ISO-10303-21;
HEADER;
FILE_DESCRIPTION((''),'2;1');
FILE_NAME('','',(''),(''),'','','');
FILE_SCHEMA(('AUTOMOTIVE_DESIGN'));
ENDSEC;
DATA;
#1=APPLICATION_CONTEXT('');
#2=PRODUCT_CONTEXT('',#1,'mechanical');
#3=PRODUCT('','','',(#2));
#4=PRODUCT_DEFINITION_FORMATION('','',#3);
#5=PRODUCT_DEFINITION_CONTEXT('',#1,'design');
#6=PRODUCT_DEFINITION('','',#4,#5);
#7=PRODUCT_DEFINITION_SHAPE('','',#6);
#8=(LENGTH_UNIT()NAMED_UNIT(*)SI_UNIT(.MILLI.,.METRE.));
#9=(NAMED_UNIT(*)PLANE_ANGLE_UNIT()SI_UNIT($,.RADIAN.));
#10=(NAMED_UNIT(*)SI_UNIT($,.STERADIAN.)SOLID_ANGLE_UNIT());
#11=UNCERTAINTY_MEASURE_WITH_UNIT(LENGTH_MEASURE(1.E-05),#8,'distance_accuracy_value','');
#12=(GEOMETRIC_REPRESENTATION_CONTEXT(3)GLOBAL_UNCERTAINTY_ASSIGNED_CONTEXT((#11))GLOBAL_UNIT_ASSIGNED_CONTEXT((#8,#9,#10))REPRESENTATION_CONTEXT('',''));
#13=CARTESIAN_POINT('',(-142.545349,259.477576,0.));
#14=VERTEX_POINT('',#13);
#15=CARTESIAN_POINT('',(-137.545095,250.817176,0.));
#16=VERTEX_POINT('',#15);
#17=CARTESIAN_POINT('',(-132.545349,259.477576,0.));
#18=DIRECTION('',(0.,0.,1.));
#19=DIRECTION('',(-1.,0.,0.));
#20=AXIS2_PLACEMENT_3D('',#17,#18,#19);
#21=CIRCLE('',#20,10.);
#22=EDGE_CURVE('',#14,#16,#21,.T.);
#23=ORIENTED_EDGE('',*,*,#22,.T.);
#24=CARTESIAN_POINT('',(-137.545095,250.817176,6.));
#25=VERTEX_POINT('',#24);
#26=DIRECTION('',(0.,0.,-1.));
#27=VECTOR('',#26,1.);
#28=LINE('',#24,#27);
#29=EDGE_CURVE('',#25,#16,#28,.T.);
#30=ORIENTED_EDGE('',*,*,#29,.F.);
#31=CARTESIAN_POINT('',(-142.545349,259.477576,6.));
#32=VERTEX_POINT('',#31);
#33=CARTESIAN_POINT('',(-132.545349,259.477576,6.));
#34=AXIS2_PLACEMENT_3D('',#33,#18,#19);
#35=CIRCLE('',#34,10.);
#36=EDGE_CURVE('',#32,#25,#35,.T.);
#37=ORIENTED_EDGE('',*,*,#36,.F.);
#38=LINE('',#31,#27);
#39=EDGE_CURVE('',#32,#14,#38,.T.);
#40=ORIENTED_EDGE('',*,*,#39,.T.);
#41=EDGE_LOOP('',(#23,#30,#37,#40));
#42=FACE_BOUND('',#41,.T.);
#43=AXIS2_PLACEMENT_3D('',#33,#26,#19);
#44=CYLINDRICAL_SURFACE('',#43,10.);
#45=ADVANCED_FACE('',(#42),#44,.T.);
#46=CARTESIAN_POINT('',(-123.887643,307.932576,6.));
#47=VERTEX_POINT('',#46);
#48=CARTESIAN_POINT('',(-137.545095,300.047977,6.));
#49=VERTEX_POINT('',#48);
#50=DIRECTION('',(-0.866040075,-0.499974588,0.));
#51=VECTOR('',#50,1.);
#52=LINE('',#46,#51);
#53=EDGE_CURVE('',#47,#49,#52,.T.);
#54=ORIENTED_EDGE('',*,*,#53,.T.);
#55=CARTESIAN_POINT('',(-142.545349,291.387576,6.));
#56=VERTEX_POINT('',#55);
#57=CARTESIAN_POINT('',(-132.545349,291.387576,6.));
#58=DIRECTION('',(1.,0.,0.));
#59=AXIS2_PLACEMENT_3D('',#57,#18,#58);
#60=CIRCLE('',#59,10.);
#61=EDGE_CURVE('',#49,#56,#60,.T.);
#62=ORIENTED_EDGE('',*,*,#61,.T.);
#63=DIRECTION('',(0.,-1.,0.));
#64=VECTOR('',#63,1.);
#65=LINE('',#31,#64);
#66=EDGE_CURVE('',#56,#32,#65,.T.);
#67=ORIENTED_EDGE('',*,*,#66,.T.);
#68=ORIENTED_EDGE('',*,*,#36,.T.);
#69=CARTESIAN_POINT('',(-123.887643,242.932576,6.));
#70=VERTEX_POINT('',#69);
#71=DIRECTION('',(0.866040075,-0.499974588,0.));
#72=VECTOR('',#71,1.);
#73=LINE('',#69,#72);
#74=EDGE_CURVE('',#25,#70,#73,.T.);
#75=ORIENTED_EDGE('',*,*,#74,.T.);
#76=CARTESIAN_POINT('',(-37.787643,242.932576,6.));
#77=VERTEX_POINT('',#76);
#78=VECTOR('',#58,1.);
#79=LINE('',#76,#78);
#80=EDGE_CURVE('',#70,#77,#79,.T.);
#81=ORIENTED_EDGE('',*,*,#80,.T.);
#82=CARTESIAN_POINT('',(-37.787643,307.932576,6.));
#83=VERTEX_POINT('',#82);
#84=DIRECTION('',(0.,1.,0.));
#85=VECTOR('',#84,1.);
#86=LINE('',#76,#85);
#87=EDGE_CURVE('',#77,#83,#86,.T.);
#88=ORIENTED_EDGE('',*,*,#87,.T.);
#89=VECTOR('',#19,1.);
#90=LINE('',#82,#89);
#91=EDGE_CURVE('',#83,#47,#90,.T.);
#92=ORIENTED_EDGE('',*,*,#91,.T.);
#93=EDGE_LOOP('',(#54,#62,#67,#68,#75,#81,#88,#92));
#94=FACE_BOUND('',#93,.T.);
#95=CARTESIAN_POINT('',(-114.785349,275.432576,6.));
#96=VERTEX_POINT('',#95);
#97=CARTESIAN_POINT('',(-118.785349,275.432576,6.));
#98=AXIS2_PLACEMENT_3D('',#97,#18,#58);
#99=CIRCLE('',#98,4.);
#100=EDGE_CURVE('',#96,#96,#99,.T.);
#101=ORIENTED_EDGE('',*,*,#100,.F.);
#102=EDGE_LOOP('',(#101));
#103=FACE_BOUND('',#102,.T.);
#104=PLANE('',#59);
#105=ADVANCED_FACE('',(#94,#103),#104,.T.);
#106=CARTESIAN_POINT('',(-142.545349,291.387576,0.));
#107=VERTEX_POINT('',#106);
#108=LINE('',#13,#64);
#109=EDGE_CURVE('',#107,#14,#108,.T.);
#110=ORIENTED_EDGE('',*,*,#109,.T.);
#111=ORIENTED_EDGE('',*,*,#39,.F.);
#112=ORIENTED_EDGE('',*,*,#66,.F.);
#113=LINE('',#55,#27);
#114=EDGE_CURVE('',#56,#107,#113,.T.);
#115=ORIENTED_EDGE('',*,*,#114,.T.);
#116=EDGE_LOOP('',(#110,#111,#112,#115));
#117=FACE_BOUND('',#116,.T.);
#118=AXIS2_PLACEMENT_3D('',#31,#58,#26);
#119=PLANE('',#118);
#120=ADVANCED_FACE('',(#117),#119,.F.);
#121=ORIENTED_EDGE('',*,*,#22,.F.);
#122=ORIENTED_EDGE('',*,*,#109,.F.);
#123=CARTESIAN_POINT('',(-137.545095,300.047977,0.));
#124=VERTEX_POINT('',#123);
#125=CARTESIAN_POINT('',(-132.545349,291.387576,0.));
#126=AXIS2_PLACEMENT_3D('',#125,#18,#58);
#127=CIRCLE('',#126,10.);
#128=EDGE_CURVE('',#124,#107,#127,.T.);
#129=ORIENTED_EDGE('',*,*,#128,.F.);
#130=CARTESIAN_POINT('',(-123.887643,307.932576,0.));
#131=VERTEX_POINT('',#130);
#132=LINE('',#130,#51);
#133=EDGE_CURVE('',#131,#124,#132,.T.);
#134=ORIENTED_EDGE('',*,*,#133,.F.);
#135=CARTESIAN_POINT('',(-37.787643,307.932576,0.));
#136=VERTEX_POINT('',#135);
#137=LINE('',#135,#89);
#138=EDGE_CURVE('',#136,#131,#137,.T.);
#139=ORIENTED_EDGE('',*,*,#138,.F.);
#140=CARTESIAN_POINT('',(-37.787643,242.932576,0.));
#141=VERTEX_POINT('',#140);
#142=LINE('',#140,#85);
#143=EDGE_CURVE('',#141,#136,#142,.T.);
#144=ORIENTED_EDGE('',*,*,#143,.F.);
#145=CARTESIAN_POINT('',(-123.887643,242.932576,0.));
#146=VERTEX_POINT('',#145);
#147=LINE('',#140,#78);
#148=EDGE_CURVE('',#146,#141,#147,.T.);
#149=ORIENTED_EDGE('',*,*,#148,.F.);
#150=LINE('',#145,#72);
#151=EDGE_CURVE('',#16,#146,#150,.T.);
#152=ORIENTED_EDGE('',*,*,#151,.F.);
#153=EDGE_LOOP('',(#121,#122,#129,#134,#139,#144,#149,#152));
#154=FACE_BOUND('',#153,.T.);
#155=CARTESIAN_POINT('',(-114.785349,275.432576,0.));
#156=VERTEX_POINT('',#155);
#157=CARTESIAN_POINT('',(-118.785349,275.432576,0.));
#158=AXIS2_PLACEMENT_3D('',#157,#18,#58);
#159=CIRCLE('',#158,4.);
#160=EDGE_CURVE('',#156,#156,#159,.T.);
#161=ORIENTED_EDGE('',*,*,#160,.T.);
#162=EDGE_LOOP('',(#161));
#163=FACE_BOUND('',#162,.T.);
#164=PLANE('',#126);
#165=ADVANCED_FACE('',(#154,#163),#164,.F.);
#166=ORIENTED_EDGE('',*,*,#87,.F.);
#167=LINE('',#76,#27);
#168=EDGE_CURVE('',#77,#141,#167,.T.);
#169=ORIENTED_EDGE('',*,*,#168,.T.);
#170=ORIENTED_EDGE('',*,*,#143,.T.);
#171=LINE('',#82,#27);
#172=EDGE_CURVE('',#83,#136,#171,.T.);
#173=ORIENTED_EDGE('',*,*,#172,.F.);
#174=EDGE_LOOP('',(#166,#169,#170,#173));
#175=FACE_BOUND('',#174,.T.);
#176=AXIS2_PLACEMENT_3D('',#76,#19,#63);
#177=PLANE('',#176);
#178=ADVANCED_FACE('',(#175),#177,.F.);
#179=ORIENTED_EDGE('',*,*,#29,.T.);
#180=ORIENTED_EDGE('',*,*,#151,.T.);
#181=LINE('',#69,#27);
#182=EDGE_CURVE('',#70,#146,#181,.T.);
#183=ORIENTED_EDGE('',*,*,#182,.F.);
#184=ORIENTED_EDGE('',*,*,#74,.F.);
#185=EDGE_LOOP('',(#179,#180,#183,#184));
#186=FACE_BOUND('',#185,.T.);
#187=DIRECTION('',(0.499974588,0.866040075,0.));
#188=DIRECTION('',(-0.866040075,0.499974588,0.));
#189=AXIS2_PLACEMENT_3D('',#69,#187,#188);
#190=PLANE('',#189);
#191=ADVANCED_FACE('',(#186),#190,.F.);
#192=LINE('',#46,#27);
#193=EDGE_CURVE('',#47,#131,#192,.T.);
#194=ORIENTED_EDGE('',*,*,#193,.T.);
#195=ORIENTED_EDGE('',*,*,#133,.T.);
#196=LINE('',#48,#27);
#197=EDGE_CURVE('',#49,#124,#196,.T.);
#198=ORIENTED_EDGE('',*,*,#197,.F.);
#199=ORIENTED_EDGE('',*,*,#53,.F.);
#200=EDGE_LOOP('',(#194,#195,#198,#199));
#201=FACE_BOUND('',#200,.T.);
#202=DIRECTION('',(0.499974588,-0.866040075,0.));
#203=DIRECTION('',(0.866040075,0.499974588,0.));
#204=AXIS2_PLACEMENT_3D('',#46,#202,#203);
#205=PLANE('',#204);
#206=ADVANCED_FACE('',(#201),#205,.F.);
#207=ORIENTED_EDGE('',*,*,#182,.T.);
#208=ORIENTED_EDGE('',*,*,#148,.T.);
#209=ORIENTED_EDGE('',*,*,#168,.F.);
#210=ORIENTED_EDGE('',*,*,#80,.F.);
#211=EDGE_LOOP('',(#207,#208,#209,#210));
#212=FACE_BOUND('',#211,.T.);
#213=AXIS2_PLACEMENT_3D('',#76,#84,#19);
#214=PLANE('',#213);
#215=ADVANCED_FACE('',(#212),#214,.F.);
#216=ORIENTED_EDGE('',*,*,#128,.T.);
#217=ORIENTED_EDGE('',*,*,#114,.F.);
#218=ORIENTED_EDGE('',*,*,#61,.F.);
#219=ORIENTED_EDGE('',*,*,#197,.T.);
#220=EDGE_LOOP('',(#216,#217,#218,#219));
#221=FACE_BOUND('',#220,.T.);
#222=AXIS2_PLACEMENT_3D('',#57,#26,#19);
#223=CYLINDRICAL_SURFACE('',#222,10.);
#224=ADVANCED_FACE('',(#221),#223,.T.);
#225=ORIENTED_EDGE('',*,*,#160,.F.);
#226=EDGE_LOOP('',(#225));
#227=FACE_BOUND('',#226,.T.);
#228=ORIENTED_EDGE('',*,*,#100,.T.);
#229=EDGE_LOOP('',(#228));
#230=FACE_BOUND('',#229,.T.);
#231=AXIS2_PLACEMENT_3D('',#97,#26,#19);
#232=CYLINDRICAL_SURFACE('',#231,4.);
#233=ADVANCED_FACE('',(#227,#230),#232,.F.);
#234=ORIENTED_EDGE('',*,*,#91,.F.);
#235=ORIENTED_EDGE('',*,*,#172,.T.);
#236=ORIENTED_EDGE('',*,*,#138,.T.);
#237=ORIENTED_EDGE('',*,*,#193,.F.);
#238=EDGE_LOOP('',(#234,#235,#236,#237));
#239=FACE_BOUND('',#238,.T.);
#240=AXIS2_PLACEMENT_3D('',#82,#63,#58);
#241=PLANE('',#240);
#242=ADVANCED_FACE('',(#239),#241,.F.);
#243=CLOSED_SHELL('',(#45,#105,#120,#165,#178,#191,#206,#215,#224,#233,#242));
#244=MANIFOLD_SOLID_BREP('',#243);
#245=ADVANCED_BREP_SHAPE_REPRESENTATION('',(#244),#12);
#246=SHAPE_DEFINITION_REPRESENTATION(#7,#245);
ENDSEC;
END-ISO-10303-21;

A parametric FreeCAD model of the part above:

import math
import FreeCAD as App
import Part
import Sketcher
Q = App.Units.Quantity

doc = App.newDocument("Part")
body = doc.addObject("PartDesign::Body", "Body")

# Sketch on XY plane
sketch1 = body.newObject("Sketcher::SketchObject", "Sketch")
sketch1.AttachmentSupport = (doc.getObject("XY_Plane"), [""])
sketch1.MapMode = "FlatFace"
sketch1.addGeometry(Part.LineSegment(App.Vector(-37.8, 307.9, 0), App.Vector(-123.9, 307.9, 0)), False)
sketch1.addGeometry(Part.LineSegment(App.Vector(-123.9, 307.9, 0), App.Vector(-137.5, 300, 0)), False)
sketch1.addGeometry(Part.ArcOfCircle(Part.Circle(App.Vector(-132.5, 291.4, 0), App.Vector(0, 0, 1), 10), math.radians(120), math.radians(180)), False)
sketch1.addGeometry(Part.LineSegment(App.Vector(-142.5, 291.4, 0), App.Vector(-142.5, 259.5, 0)), False)
sketch1.addGeometry(Part.ArcOfCircle(Part.Circle(App.Vector(-132.5, 259.5, 0), App.Vector(0, 0, 1), 10), math.radians(180), math.radians(240)), False)
sketch1.addGeometry(Part.LineSegment(App.Vector(-137.5, 250.8, 0), App.Vector(-123.9, 242.9, 0)), False)
sketch1.addGeometry(Part.LineSegment(App.Vector(-123.9, 242.9, 0), App.Vector(-37.8, 242.9, 0)), False)
sketch1.addGeometry(Part.LineSegment(App.Vector(-37.8, 242.9, 0), App.Vector(-37.8, 307.9, 0)), False)
sketch1.addGeometry(Part.Circle(App.Vector(-118.8, 275.4, 0), App.Vector(0, 0, 1), 4), False)
sketch1.addConstraint(Sketcher.Constraint("Coincident", 0, 2, 1, 1))
sketch1.addConstraint(Sketcher.Constraint("Tangent", 1, 2, 2, 1))
sketch1.addConstraint(Sketcher.Constraint("Tangent", 2, 2, 3, 1))
sketch1.addConstraint(Sketcher.Constraint("Tangent", 3, 2, 4, 1))
sketch1.addConstraint(Sketcher.Constraint("Tangent", 4, 2, 5, 1))
sketch1.addConstraint(Sketcher.Constraint("Coincident", 5, 2, 6, 1))
sketch1.addConstraint(Sketcher.Constraint("Coincident", 6, 2, 7, 1))
sketch1.addConstraint(Sketcher.Constraint("Coincident", 7, 2, 0, 1))
sketch1.addConstraint(Sketcher.Constraint("Horizontal", 0))
sketch1.addConstraint(Sketcher.Constraint("Vertical", 3))
sketch1.addConstraint(Sketcher.Constraint("Horizontal", 6))
sketch1.addConstraint(Sketcher.Constraint("Vertical", 7))
sketch1.addConstraint(Sketcher.Constraint("Equal", 2, 4))
sketch1.addConstraint(Sketcher.Constraint("Vertical", 1, 2, 4, 2))
sketch1.addConstraint(Sketcher.Constraint("Vertical", 0, 2, 5, 2))
sketch1.addConstraint(Sketcher.Constraint("Diameter", 8, Q("8 mm")))
sketch1.addConstraint(Sketcher.Constraint("Radius", 2, Q("10 mm")))
sketch1.addConstraint(Sketcher.Constraint("DistanceY", 7, 1, 7, 2, Q("65 mm")))
sketch1.addConstraint(Sketcher.Constraint("DistanceX", 0, 2, 0, 1, Q("86.1 mm")))
sketch1.addConstraint(Sketcher.Constraint("DistanceY", 3, 2, 3, 1, Q("31.91 mm")))
sketch1.addConstraint(Sketcher.Constraint("DistanceY", 8, 3, 0, 2, Q("32.5 mm")))
sketch1.addConstraint(Sketcher.Constraint("Distance", 1, Q("15.77 mm")))
sketch1.addConstraint(Sketcher.Constraint("DistanceX", 2, 3, 8, 3, Q("13.76 mm")))
sketch1.addConstraint(Sketcher.Constraint("DistanceX", 2, 3, -1, 1, Q("132.545349 mm")))
sketch1.addConstraint(Sketcher.Constraint("DistanceY", -1, 1, 2, 3, Q("291.387576 mm")))
pad1 = body.newObject("PartDesign::Pad", "Pad")
pad1.Profile = sketch1
pad1.Length = 6

doc.recompute()
